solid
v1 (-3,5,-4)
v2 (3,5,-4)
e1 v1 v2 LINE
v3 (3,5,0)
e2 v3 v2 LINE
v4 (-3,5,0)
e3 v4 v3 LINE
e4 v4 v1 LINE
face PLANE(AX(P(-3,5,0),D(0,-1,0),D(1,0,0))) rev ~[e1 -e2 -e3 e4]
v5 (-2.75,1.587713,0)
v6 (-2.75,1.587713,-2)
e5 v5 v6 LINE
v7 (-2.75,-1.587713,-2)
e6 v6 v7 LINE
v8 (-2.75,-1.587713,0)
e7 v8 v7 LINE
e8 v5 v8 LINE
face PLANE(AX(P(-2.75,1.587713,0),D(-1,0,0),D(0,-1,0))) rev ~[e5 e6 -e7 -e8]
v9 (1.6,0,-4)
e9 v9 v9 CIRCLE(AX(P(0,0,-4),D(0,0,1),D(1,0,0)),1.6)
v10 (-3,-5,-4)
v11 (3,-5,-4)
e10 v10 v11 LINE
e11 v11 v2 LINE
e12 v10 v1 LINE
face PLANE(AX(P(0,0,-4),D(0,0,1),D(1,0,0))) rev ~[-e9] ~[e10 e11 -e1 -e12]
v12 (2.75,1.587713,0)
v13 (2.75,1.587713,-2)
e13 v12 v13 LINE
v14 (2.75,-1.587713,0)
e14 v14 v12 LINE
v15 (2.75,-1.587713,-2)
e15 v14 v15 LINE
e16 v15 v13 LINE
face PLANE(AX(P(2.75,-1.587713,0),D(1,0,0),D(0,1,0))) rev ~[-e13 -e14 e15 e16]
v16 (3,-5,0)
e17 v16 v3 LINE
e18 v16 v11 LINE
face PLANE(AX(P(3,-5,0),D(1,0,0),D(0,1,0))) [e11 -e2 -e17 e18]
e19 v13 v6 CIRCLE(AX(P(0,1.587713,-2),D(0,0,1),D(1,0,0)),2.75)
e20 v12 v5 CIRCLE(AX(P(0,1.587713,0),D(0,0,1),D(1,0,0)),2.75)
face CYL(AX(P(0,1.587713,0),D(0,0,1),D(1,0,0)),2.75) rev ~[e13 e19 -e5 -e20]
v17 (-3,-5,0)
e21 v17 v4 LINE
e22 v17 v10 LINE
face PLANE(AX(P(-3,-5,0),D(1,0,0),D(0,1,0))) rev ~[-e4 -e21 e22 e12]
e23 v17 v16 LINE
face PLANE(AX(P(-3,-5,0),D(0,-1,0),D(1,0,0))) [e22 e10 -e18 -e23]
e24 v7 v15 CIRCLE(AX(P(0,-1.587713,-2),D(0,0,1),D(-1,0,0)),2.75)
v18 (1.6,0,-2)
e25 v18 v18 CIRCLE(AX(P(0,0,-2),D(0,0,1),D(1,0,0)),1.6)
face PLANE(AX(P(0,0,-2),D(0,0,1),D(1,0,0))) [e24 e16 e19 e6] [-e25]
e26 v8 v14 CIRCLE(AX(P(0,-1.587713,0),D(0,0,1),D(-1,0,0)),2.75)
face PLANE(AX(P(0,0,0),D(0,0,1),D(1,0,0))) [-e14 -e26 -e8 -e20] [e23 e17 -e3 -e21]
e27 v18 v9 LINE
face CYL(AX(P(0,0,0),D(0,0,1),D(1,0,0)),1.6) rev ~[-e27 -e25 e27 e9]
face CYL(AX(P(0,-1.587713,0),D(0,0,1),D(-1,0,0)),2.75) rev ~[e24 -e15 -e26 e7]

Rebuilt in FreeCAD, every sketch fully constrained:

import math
import FreeCAD as App
import Part
import Sketcher


def add_polygon(sketch, points):
    """Adds a closed chain of lines whose ends are joined by coincident constraints."""
    first, n = sketch.GeometryCount, len(points)
    for a, b in zip(points, points[1:] + points[:1]):
        sketch.addGeometry(Part.LineSegment(App.Vector(*a, 0), App.Vector(*b, 0)), False)
    for i in range(n):
        sketch.addConstraint(Sketcher.Constraint("Coincident", first + i, 2, first + (i + 1) % n, 1))

doc = App.newDocument("Part")
body = doc.addObject("PartDesign::Body", "Body")

sketch1 = body.newObject("Sketcher::SketchObject", "Sketch")
sketch1.AttachmentSupport = (doc.getObject("XY_Plane"), [""])
sketch1.MapMode = "FlatFace"
add_polygon(sketch1, [(-3, 5), (-3, -5), (3, -5), (3, 5)])
sketch1.addGeometry(Part.Circle(App.Vector(0, 0, 0), App.Vector(0, 0, 1), 1.6), False)
sketch1.addConstraint([
    Sketcher.Constraint("Vertical", 0),
    Sketcher.Constraint("Horizontal", 1),
    Sketcher.Constraint("Vertical", 2),
    Sketcher.Constraint("Horizontal", 3),
    Sketcher.Constraint("Coincident", 4, 3, -1, 1),
    Sketcher.Constraint("Symmetric", 0, 2, 2, 2, -1, 1),
    Sketcher.Constraint("Diameter", 4, 3.2),
    Sketcher.Constraint("DistanceX", 1, 1, 1, 2, 6.0),
    Sketcher.Constraint("DistanceY", 0, 2, 0, 1, 10.0),
])
pad1 = body.newObject("PartDesign::Pad", "Pad")
pad1.Profile = sketch1
pad1.Length = 4
pad1.Reversed = True

sketch2 = body.newObject("Sketcher::SketchObject", "Sketch001")
sketch2.AttachmentSupport = (doc.getObject("XY_Plane"), [""])
sketch2.MapMode = "FlatFace"
sketch2.addGeometry([
    Part.LineSegment(App.Vector(2.8, -1.6, 0), App.Vector(2.8, 1.6, 0)),
    Part.ArcOfCircle(Part.Circle(App.Vector(0, 1.6, 0), App.Vector(0, 0, 1), 2.8), math.radians(0), math.radians(180)),
    Part.LineSegment(App.Vector(-2.8, 1.6, 0), App.Vector(-2.8, -1.6, 0)),
    Part.ArcOfCircle(Part.Circle(App.Vector(0, -1.6, 0), App.Vector(0, 0, 1), 2.8), math.radians(180), math.radians(360)),
    Part.Circle(App.Vector(0, 0, 0), App.Vector(0, 0, 1), 1.6),
], False)
sketch2.addConstraint([
    Sketcher.Constraint("Tangent", 0, 2, 1, 1),
    Sketcher.Constraint("Tangent", 1, 2, 2, 1),
    Sketcher.Constraint("Tangent", 2, 2, 3, 1),
    Sketcher.Constraint("Tangent", 3, 2, 0, 1),
    Sketcher.Constraint("Vertical", 0),
    Sketcher.Constraint("Vertical", 2),
    Sketcher.Constraint("Coincident", 4, 3, -1, 1),
    Sketcher.Constraint("Symmetric", 1, 3, 3, 3, -1, 1),
    Sketcher.Constraint("Diameter", 4, 3.2),
    Sketcher.Constraint("Radius", 1, 2.75),
    Sketcher.Constraint("DistanceY", 0, 1, 0, 2, 3.175426),
])
pocket1 = body.newObject("PartDesign::Pocket", "Pocket")
pocket1.Profile = sketch2
pocket1.Length = 2

doc.recompute()
